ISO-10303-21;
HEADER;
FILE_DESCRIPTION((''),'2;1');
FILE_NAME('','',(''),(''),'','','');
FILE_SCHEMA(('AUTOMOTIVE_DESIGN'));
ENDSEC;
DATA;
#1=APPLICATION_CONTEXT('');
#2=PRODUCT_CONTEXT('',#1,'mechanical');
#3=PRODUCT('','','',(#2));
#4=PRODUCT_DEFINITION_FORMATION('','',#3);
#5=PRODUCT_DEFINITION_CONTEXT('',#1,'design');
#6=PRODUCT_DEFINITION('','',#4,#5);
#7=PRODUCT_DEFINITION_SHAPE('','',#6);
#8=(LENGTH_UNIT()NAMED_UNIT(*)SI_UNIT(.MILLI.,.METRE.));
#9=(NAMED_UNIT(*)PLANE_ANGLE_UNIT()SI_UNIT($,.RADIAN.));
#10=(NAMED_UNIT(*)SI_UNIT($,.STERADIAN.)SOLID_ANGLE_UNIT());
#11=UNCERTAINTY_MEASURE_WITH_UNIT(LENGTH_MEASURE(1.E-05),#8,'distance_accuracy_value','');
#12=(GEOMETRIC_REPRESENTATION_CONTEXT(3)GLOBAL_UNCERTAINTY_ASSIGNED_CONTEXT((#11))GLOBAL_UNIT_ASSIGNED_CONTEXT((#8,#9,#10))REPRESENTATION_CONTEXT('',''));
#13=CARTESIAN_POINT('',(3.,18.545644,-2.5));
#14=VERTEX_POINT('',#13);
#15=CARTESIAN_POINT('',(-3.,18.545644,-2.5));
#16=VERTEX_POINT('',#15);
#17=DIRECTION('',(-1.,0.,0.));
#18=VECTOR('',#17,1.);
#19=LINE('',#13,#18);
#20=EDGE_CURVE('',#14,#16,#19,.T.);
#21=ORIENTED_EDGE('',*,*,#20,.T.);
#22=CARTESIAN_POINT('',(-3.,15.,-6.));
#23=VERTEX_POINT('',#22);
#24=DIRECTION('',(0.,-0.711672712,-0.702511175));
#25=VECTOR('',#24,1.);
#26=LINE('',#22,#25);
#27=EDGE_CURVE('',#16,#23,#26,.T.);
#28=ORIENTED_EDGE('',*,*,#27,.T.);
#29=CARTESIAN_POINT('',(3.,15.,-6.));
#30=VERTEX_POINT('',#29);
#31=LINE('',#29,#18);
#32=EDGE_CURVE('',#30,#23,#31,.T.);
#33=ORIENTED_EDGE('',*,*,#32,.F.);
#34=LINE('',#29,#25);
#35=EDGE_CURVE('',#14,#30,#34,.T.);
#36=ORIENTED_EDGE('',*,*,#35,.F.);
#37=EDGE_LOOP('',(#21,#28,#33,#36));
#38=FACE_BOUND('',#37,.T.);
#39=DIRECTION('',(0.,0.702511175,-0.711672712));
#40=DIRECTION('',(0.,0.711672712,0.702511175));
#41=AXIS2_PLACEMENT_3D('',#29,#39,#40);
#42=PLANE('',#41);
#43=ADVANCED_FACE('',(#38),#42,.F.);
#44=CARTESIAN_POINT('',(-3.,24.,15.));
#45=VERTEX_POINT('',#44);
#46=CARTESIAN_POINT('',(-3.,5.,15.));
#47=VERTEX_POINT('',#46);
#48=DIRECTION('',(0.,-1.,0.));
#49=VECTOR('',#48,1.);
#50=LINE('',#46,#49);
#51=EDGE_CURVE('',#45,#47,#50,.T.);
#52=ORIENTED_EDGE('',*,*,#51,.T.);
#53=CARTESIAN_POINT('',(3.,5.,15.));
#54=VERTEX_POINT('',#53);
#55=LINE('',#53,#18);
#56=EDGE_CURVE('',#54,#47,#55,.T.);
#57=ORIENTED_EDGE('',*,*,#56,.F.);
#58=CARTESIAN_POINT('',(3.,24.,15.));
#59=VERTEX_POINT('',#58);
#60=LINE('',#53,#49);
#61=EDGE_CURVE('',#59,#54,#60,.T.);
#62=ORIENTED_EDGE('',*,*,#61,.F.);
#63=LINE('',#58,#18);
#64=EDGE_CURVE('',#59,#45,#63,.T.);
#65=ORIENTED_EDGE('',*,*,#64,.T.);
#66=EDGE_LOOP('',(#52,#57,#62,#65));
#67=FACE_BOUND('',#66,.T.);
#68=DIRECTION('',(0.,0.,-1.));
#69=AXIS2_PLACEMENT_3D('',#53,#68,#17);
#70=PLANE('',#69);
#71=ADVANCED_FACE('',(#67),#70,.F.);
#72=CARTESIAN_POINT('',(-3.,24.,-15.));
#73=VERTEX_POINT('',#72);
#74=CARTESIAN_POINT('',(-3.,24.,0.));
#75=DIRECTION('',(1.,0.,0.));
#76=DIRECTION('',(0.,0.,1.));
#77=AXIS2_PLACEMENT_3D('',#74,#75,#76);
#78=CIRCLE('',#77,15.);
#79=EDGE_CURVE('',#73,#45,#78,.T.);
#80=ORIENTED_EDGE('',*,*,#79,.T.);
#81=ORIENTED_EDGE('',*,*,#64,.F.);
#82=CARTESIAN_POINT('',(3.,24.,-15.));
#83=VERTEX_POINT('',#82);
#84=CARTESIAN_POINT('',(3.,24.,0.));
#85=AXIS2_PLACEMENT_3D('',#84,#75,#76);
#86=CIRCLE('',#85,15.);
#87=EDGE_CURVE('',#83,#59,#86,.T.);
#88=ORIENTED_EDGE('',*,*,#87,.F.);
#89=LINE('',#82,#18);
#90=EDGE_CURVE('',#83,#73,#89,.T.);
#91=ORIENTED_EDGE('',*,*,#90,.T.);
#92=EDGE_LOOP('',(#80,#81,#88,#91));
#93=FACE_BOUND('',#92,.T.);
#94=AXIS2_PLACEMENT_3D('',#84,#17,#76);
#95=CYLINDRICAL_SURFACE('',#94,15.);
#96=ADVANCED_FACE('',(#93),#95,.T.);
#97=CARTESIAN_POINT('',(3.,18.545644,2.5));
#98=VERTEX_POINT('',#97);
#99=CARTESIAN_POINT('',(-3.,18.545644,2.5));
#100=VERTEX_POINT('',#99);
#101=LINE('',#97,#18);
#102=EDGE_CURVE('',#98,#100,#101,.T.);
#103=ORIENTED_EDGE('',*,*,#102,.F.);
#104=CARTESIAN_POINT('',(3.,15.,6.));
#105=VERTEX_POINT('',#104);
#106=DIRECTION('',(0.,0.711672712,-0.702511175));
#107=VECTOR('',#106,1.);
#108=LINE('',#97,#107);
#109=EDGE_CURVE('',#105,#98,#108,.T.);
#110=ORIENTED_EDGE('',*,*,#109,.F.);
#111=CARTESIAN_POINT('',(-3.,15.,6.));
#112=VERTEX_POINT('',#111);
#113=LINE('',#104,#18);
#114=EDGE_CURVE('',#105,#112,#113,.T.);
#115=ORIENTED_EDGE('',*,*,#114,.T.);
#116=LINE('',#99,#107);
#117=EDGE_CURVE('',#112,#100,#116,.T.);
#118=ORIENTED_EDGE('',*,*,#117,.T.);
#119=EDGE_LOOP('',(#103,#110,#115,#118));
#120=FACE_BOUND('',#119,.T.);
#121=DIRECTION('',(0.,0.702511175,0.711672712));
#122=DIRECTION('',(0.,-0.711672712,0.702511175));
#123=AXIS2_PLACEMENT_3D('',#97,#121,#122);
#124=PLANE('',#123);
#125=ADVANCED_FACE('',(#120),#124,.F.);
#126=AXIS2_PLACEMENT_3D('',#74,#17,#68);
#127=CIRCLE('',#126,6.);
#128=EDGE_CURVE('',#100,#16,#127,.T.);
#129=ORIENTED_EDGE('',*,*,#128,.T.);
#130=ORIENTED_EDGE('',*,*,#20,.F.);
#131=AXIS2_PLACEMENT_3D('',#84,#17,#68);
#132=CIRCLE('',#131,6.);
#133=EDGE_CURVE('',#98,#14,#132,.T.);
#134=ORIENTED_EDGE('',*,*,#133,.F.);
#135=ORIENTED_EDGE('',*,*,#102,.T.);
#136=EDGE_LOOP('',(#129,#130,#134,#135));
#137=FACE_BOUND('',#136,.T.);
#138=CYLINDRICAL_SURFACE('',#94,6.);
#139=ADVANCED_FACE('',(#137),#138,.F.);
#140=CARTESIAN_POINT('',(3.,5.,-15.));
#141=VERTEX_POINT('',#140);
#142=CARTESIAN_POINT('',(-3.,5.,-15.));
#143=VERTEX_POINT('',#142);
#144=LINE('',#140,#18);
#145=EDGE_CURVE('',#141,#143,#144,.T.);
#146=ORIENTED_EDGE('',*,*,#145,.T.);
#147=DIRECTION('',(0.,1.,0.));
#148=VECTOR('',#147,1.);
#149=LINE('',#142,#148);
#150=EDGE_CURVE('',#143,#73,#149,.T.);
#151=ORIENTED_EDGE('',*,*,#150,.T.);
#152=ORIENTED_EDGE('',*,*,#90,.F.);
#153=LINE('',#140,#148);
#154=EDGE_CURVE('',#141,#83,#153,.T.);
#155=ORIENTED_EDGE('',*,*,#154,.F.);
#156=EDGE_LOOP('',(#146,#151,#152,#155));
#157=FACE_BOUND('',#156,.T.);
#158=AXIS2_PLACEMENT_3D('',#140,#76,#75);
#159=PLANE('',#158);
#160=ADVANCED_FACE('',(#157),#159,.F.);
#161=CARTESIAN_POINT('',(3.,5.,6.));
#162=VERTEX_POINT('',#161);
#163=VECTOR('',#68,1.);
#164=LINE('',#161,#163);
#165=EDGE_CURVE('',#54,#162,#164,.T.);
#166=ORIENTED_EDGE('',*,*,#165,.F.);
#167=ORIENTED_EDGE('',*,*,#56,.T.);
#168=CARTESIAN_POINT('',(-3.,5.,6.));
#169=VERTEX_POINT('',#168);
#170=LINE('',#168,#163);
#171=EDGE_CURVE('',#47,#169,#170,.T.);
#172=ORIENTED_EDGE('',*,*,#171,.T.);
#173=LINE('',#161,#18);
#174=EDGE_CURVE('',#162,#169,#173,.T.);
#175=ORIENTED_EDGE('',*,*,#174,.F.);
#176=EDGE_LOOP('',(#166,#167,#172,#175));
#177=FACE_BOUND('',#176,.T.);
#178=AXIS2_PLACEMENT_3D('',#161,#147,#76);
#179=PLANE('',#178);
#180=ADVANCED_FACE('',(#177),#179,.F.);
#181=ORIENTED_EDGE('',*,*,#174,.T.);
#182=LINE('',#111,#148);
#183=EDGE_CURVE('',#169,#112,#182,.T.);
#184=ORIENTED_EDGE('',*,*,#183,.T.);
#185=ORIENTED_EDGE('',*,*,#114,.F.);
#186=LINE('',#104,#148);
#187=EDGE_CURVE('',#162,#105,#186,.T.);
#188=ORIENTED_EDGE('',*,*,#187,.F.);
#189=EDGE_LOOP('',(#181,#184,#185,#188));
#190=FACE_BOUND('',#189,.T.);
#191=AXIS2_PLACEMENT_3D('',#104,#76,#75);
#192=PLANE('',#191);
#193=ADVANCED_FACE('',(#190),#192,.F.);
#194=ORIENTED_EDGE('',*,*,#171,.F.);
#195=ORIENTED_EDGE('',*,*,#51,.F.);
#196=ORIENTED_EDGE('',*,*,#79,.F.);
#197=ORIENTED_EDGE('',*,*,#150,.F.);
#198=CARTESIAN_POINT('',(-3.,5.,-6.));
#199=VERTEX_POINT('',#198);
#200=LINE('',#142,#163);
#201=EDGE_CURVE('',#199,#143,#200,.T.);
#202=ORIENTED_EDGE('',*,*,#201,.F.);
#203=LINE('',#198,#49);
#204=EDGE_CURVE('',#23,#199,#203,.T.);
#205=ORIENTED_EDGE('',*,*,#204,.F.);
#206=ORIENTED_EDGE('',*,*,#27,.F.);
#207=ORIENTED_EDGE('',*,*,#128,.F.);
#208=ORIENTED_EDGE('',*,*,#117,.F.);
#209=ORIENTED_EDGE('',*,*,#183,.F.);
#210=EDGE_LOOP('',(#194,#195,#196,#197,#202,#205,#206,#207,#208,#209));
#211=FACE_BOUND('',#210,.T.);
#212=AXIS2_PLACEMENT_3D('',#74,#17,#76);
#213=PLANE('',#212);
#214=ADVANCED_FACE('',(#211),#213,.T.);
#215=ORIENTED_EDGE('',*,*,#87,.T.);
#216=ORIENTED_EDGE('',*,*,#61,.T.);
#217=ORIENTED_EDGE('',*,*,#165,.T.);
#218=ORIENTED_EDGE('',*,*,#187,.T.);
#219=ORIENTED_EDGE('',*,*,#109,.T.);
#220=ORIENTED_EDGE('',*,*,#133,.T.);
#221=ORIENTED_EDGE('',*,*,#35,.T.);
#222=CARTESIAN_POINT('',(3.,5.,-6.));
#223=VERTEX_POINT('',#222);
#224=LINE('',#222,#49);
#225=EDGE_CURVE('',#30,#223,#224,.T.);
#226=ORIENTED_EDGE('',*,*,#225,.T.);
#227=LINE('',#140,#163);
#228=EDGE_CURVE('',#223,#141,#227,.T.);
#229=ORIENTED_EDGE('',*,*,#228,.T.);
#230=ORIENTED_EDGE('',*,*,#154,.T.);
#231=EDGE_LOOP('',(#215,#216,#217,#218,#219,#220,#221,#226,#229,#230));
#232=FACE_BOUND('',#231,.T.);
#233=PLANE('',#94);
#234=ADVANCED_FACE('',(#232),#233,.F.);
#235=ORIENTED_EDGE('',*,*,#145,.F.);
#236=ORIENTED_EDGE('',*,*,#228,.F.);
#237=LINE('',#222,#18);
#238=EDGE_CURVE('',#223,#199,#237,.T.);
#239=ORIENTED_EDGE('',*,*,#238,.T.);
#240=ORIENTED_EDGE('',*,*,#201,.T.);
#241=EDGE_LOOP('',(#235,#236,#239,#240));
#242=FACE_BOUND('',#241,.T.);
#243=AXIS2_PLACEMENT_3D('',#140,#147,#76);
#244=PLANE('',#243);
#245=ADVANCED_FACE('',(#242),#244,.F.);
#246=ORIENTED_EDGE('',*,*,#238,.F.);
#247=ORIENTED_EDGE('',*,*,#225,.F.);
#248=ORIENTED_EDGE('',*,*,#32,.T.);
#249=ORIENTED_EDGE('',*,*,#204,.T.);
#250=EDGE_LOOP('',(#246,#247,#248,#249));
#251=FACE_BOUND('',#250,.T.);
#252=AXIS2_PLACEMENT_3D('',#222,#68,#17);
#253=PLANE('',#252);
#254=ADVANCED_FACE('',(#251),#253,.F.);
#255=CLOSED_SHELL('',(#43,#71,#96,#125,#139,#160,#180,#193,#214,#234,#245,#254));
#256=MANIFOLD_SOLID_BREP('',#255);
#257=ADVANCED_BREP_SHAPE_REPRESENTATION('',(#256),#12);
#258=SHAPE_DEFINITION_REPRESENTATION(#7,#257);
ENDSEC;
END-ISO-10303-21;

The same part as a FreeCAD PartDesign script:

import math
import FreeCAD as App
import Part
import Sketcher
from FreeCAD import Vector

doc = App.newDocument("Part")
body = doc.addObject("PartDesign::Body", "Body")

# Sketch on YZ plane
sketch1 = body.newObject("Sketcher::SketchObject", "Sketch")
sketch1.AttachmentSupport = (doc.getObject("YZ_Plane"), [""])
sketch1.MapMode = "FlatFace"
sketch1.addGeometry([
    Part.LineSegment(Vector(5, -6, 0), Vector(5, -15, 0)),  # 0
    Part.LineSegment(Vector(5, -15, 0), Vector(24, -15, 0)),  # 1
    Part.ArcOfCircle(Part.Circle(Vector(24, 0, 0), Vector(0, 0, 1), 15), math.radians(-90), math.radians(90)),  # 2
    Part.LineSegment(Vector(24, 15, 0), Vector(5, 15, 0)),  # 3
    Part.LineSegment(Vector(5, 15, 0), Vector(5, 6, 0)),  # 4
    Part.LineSegment(Vector(5, 6, 0), Vector(15, 6, 0)),  # 5
    Part.LineSegment(Vector(15, 6, 0), Vector(18.5, 2.5, 0)),  # 6
    Part.ArcOfCircle(Part.Circle(Vector(24, 0, 0), Vector(0, 0, 1), 6), math.radians(-155), math.radians(155)),  # 7
    Part.LineSegment(Vector(18.5, -2.5, 0), Vector(15, -6, 0)),  # 8
    Part.LineSegment(Vector(15, -6, 0), Vector(5, -6, 0)),  # 9
], False)
sketch1.addConstraint([
    Sketcher.Constraint("Coincident", 0, 2, 1, 1),
    Sketcher.Constraint("Tangent", 1, 2, 2, 1),
    Sketcher.Constraint("Tangent", 2, 2, 3, 1),
    Sketcher.Constraint("Coincident", 3, 2, 4, 1),
    Sketcher.Constraint("Coincident", 4, 2, 5, 1),
    Sketcher.Constraint("Coincident", 5, 2, 6, 1),
    Sketcher.Constraint("Coincident", 6, 2, 7, 2),
    Sketcher.Constraint("Coincident", 7, 1, 8, 1),
    Sketcher.Constraint("Coincident", 8, 2, 9, 1),
    Sketcher.Constraint("Coincident", 9, 2, 0, 1),
    Sketcher.Constraint("Vertical", 0),
    Sketcher.Constraint("Horizontal", 1),
    Sketcher.Constraint("Horizontal", 3),
    Sketcher.Constraint("Vertical", 4),
    Sketcher.Constraint("Horizontal", 5),
    Sketcher.Constraint("Horizontal", 9),
    Sketcher.Constraint("Coincident", 7, 3, 2, 3),
    Sketcher.Constraint("Symmetric", 0, 2, 3, 2, -1),
    Sketcher.Constraint("Symmetric", 5, 2, 8, 2, -1),
    Sketcher.Constraint("Vertical", 6, 2, 7, 1),
    Sketcher.Constraint("Radius", 2, 15.0),
    Sketcher.Constraint("Radius", 7, 6.0),
    Sketcher.Constraint("DistanceX", 1, 1, 1, 2, 19.0),
    Sketcher.Constraint("DistanceX", 5, 1, 5, 2, 10.0),
    Sketcher.Constraint("DistanceY", 0, 2, 0, 1, 9.0),
    Sketcher.Constraint("DistanceX", -1, 1, 2, 3, 24.0),
    Sketcher.Constraint("DistanceY", 7, 1, 6, 2, 5.0),
])
pad1 = body.newObject("PartDesign::Pad", "Pad")
pad1.Profile = sketch1
pad1.Length = 6
pad1.Midplane = True

doc.recompute()
